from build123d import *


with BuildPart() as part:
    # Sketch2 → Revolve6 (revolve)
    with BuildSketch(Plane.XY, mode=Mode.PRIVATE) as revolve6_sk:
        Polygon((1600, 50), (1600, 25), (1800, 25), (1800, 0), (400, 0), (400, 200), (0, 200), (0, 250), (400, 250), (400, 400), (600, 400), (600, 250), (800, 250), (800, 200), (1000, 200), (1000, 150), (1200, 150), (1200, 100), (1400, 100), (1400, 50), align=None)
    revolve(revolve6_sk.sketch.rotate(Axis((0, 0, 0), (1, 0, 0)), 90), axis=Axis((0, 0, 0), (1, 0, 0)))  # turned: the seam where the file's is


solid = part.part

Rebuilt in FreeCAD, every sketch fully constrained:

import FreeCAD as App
import Part
import Sketcher
from FreeCAD import Vector
Q = App.Units.Quantity

doc = App.newDocument("Part")
params = doc.addObject("Spreadsheet::Sheet", "Params")
for row, (alias, value) in enumerate([
    ("sketch1_width", "200 mm"),
    ("sketch1_width2", "400 mm"),
    ("sketch1_height", "25 mm"),
    ("sketch1_height2", "150 mm"),
    ("revolution_angle", "360 deg"),
], start=1):
    params.set(f"A{row}", alias)
    params.set(f"B{row}", "=" + value)
    params.setAlias(f"B{row}", alias)

body = doc.addObject("PartDesign::Body", "Body")

sketch1 = body.newObject("Sketcher::SketchObject", "Sketch")
sketch1.AttachmentSupport = (doc.getObject("XY_Plane"), [""])
sketch1.MapMode = "FlatFace"
sketch1.addGeometry(Part.LineSegment(Vector(1600, 25, 0), Vector(1600, 50, 0)), False)
sketch1.addGeometry(Part.LineSegment(Vector(1600, 50, 0), Vector(1400, 50, 0)), False)
sketch1.addGeometry(Part.LineSegment(Vector(1400, 50, 0), Vector(1400, 100, 0)), False)
sketch1.addGeometry(Part.LineSegment(Vector(1400, 100, 0), Vector(1200, 100, 0)), False)
sketch1.addGeometry(Part.LineSegment(Vector(1200, 100, 0), Vector(1200, 150, 0)), False)
sketch1.addGeometry(Part.LineSegment(Vector(1200, 150, 0), Vector(1000, 150, 0)), False)
sketch1.addGeometry(Part.LineSegment(Vector(1000, 150, 0), Vector(1000, 200, 0)), False)
sketch1.addGeometry(Part.LineSegment(Vector(1000, 200, 0), Vector(800, 200, 0)), False)
sketch1.addGeometry(Part.LineSegment(Vector(800, 200, 0), Vector(800, 250, 0)), False)
sketch1.addGeometry(Part.LineSegment(Vector(800, 250, 0), Vector(600, 250, 0)), False)
sketch1.addGeometry(Part.LineSegment(Vector(600, 250, 0), Vector(600, 400, 0)), False)
sketch1.addGeometry(Part.LineSegment(Vector(600, 400, 0), Vector(400, 400, 0)), False)
sketch1.addGeometry(Part.LineSegment(Vector(400, 400, 0), Vector(400, 250, 0)), False)
sketch1.addGeometry(Part.LineSegment(Vector(400, 250, 0), Vector(0, 250, 0)), False)
sketch1.addGeometry(Part.LineSegment(Vector(0, 250, 0), Vector(0, 200, 0)), False)
sketch1.addGeometry(Part.LineSegment(Vector(0, 200, 0), Vector(400, 200, 0)), False)
sketch1.addGeometry(Part.LineSegment(Vector(400, 200, 0), Vector(400, 0, 0)), False)
sketch1.addGeometry(Part.LineSegment(Vector(400, 0, 0), Vector(1800, 0, 0)), False)
sketch1.addGeometry(Part.LineSegment(Vector(1800, 0, 0), Vector(1800, 25, 0)), False)
sketch1.addGeometry(Part.LineSegment(Vector(1800, 25, 0), Vector(1600, 25, 0)), False)
sketch1.addConstraint(Sketcher.Constraint("Coincident", 0, 2, 1, 1))
sketch1.addConstraint(Sketcher.Constraint("Coincident", 1, 2, 2, 1))
sketch1.addConstraint(Sketcher.Constraint("Coincident", 2, 2, 3, 1))
sketch1.addConstraint(Sketcher.Constraint("Coincident", 3, 2, 4, 1))
sketch1.addConstraint(Sketcher.Constraint("Coincident", 4, 2, 5, 1))
sketch1.addConstraint(Sketcher.Constraint("Coincident", 5, 2, 6, 1))
sketch1.addConstraint(Sketcher.Constraint("Coincident", 6, 2, 7, 1))
sketch1.addConstraint(Sketcher.Constraint("Coincident", 7, 2, 8, 1))
sketch1.addConstraint(Sketcher.Constraint("Coincident", 8, 2, 9, 1))
sketch1.addConstraint(Sketcher.Constraint("Coincident", 9, 2, 10, 1))
sketch1.addConstraint(Sketcher.Constraint("Coincident", 10, 2, 11, 1))
sketch1.addConstraint(Sketcher.Constraint("Coincident", 11, 2, 12, 1))
sketch1.addConstraint(Sketcher.Constraint("Coincident", 12, 2, 13, 1))
sketch1.addConstraint(Sketcher.Constraint("Coincident", 13, 2, 14, 1))
sketch1.addConstraint(Sketcher.Constraint("Coincident", 14, 2, 15, 1))
sketch1.addConstraint(Sketcher.Constraint("Coincident", 15, 2, 16, 1))
sketch1.addConstraint(Sketcher.Constraint("Coincident", 16, 2, 17, 1))
sketch1.addConstraint(Sketcher.Constraint("Coincident", 17, 2, 18, 1))
sketch1.addConstraint(Sketcher.Constraint("Coincident", 18, 2, 19, 1))
sketch1.addConstraint(Sketcher.Constraint("Coincident", 19, 2, 0, 1))
sketch1.addConstraint(Sketcher.Constraint("Vertical", 0))
sketch1.addConstraint(Sketcher.Constraint("Horizontal", 1))
sketch1.addConstraint(Sketcher.Constraint("Vertical", 2))
sketch1.addConstraint(Sketcher.Constraint("Horizontal", 3))
sketch1.addConstraint(Sketcher.Constraint("Vertical", 4))
sketch1.addConstraint(Sketcher.Constraint("Horizontal", 5))
sketch1.addConstraint(Sketcher.Constraint("Vertical", 6))
sketch1.addConstraint(Sketcher.Constraint("Horizontal", 7))
sketch1.addConstraint(Sketcher.Constraint("Vertical", 8))
sketch1.addConstraint(Sketcher.Constraint("Horizontal", 9))
sketch1.addConstraint(Sketcher.Constraint("Vertical", 10))
sketch1.addConstraint(Sketcher.Constraint("Horizontal", 11))
sketch1.addConstraint(Sketcher.Constraint("Vertical", 12))
sketch1.addConstraint(Sketcher.Constraint("Horizontal", 13))
sketch1.addConstraint(Sketcher.Constraint("Vertical", 14))
sketch1.addConstraint(Sketcher.Constraint("Horizontal", 15))
sketch1.addConstraint(Sketcher.Constraint("Vertical", 16))
sketch1.addConstraint(Sketcher.Constraint("Horizontal", 17))
sketch1.addConstraint(Sketcher.Constraint("Vertical", 18))
sketch1.addConstraint(Sketcher.Constraint("Horizontal", 19))
sketch1.addConstraint(Sketcher.Constraint("PointOnObject", 13, 2, -2))
sketch1.addConstraint(Sketcher.Constraint("PointOnObject", 16, 2, -1))
sketch1.addConstraint(Sketcher.Constraint("Horizontal", 9, 2, 12, 2))
sketch1.addConstraint(Sketcher.Constraint("Horizontal", 7, 2, 14, 2))
sketch1.addConstraint(Sketcher.Constraint("Vertical", 12, 2, 15, 2))
sketch1.addConstraint(Sketcher.Constraint("Equal", 1, 3))
sketch1.addConstraint(Sketcher.Constraint("Equal", 3, 5))
sketch1.addConstraint(Sketcher.Constraint("Equal", 5, 7))
sketch1.addConstraint(Sketcher.Constraint("Equal", 7, 9))
sketch1.addConstraint(Sketcher.Constraint("Equal", 9, 11))
sketch1.addConstraint(Sketcher.Constraint("Equal", 11, 19))
sketch1.addConstraint(Sketcher.Constraint("Equal", 2, 4))
sketch1.addConstraint(Sketcher.Constraint("Equal", 4, 6))
sketch1.addConstraint(Sketcher.Constraint("Equal", 6, 8))
sketch1.addConstraint(Sketcher.Constraint("Equal", 19, 16))
sketch1.addConstraint(Sketcher.Constraint("Equal", 0, 18))
sketch1.addConstraint(Sketcher.Constraint("DistanceX", 1, 2, 1, 1, Q("200 mm")))
sketch1.addConstraint(Sketcher.Constraint("DistanceX", 13, 2, 13, 1, Q("400 mm")))
sketch1.addConstraint(Sketcher.Constraint("DistanceY", 0, 1, 0, 2, Q("25 mm")))
sketch1.addConstraint(Sketcher.Constraint("DistanceY", 10, 1, 10, 2, Q("150 mm")))
sketch1.setExpression("Constraints[56]", "Params.sketch1_width")
sketch1.setExpression("Constraints[57]", "Params.sketch1_width2")
sketch1.setExpression("Constraints[58]", "Params.sketch1_height")
sketch1.setExpression("Constraints[59]", "Params.sketch1_height2")
revolution = body.newObject("PartDesign::Revolution", "Revolution")
revolution.Profile = sketch1
revolution.ReferenceAxis = (sketch1, ["H_Axis"])
revolution.setExpression("Angle", "Params.revolution_angle")

doc.recompute()
